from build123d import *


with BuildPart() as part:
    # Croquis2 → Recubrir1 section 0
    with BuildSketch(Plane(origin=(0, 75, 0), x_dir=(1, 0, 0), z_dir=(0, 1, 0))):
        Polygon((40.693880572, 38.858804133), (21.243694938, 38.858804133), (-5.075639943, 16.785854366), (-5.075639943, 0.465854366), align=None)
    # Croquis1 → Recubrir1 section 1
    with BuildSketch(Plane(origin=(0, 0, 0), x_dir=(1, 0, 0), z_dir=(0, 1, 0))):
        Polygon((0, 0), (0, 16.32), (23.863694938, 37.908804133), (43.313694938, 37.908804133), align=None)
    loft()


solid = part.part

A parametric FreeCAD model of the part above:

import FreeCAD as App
import Part
import Sketcher

V = App.Vector
Q = App.Units.Quantity


def add_polygon(sketch, points):
    """Adds a closed chain of lines whose ends are joined by coincident constraints."""
    first, n = sketch.GeometryCount, len(points)
    for a, b in zip(points, points[1:] + points[:1]):
        sketch.addGeometry(Part.LineSegment(App.Vector(*a, 0), App.Vector(*b, 0)), False)
    for i in range(n):
        sketch.addConstraint(Sketcher.Constraint("Coincident", first + i, 2, first + (i + 1) % n, 1))

doc = App.newDocument("Part")
params = doc.addObject("Spreadsheet::Sheet", "Params")
for row, (alias, value) in enumerate([
    ("sketch1_height", "16.32 mm"),
    ("sketch1_length", "34.35 mm"),
    ("sketch1_length2", "59.74 mm"),
    ("sketch2_width", "19.45 mm"),
    ("sketch2_height", "16.32 mm"),
    ("sketch2_length", "57.56 mm"),
    ("sketch2_length2", "32.18 mm"),
], start=1):
    params.set(f"A{row}", alias)
    params.set(f"B{row}", "=" + value)
    params.setAlias(f"B{row}", alias)

body = doc.addObject("PartDesign::Body", "Body")

# Sketch on XZ plane
sketch1 = body.newObject("Sketcher::SketchObject", "Sketch")
sketch1.AttachmentSupport = (doc.getObject("XZ_Plane"), [""])
sketch1.MapMode = "FlatFace"
sketch1.AttachmentOffset = App.Placement(V(0, 0, -75), App.Rotation())
add_polygon(sketch1, [(41, -39), (21, -39), (-5, -17), (-5, 0)])  # lines 0-3
sketch1.addConstraint(Sketcher.Constraint("Horizontal", 0))
sketch1.addConstraint(Sketcher.Constraint("Vertical", 2))
sketch1.addConstraint(Sketcher.Constraint("DistanceY", 2, 1, 2, 2, Q("16.32 mm")))
sketch1.addConstraint(Sketcher.Constraint("Distance", 1, Q("34.35 mm")))
sketch1.addConstraint(Sketcher.Constraint("Distance", 3, Q("59.74 mm")))
sketch1.addConstraint(Sketcher.Constraint("DistanceX", 1, 2, -1, 1, Q("5.07564 mm")))
sketch1.addConstraint(Sketcher.Constraint("DistanceX", -1, 1, 3, 2, Q("40.693881 mm")))
sketch1.addConstraint(Sketcher.Constraint("DistanceY", 0, 2, -1, 1, Q("38.858804 mm")))
sketch1.setExpression("Constraints[6]", "Params.sketch1_height")
sketch1.setExpression("Constraints[7]", "Params.sketch1_length")
sketch1.setExpression("Constraints[8]", "Params.sketch1_length2")

# Sketch on XZ plane
sketch2 = body.newObject("Sketcher::SketchObject", "Sketch001")
sketch2.AttachmentSupport = (doc.getObject("XZ_Plane"), [""])
sketch2.MapMode = "FlatFace"
add_polygon(sketch2, [(0, -16), (0, 0), (43, -38), (24, -38)])  # lines 0-3
sketch2.addConstraint(Sketcher.Constraint("Vertical", 0))
sketch2.addConstraint(Sketcher.Constraint("Horizontal", 2))
sketch2.addConstraint(Sketcher.Constraint("Coincident", 0, 2, -1, 1))
sketch2.addConstraint(Sketcher.Constraint("DistanceX", 2, 2, 2, 1, Q("19.45 mm")))
sketch2.addConstraint(Sketcher.Constraint("DistanceY", 0, 1, 0, 2, Q("16.32 mm")))
sketch2.addConstraint(Sketcher.Constraint("Distance", 1, Q("57.56 mm")))
sketch2.addConstraint(Sketcher.Constraint("Distance", 3, Q("32.18 mm")))
sketch2.setExpression("Constraints[7]", "Params.sketch2_width")
sketch2.setExpression("Constraints[8]", "Params.sketch2_height")
sketch2.setExpression("Constraints[9]", "Params.sketch2_length")
sketch2.setExpression("Constraints[10]", "Params.sketch2_length2")

additiveloft = body.newObject("PartDesign::AdditiveLoft", "AdditiveLoft")
additiveloft.Profile = sketch1
additiveloft.Sections = [sketch2]

doc.recompute()
